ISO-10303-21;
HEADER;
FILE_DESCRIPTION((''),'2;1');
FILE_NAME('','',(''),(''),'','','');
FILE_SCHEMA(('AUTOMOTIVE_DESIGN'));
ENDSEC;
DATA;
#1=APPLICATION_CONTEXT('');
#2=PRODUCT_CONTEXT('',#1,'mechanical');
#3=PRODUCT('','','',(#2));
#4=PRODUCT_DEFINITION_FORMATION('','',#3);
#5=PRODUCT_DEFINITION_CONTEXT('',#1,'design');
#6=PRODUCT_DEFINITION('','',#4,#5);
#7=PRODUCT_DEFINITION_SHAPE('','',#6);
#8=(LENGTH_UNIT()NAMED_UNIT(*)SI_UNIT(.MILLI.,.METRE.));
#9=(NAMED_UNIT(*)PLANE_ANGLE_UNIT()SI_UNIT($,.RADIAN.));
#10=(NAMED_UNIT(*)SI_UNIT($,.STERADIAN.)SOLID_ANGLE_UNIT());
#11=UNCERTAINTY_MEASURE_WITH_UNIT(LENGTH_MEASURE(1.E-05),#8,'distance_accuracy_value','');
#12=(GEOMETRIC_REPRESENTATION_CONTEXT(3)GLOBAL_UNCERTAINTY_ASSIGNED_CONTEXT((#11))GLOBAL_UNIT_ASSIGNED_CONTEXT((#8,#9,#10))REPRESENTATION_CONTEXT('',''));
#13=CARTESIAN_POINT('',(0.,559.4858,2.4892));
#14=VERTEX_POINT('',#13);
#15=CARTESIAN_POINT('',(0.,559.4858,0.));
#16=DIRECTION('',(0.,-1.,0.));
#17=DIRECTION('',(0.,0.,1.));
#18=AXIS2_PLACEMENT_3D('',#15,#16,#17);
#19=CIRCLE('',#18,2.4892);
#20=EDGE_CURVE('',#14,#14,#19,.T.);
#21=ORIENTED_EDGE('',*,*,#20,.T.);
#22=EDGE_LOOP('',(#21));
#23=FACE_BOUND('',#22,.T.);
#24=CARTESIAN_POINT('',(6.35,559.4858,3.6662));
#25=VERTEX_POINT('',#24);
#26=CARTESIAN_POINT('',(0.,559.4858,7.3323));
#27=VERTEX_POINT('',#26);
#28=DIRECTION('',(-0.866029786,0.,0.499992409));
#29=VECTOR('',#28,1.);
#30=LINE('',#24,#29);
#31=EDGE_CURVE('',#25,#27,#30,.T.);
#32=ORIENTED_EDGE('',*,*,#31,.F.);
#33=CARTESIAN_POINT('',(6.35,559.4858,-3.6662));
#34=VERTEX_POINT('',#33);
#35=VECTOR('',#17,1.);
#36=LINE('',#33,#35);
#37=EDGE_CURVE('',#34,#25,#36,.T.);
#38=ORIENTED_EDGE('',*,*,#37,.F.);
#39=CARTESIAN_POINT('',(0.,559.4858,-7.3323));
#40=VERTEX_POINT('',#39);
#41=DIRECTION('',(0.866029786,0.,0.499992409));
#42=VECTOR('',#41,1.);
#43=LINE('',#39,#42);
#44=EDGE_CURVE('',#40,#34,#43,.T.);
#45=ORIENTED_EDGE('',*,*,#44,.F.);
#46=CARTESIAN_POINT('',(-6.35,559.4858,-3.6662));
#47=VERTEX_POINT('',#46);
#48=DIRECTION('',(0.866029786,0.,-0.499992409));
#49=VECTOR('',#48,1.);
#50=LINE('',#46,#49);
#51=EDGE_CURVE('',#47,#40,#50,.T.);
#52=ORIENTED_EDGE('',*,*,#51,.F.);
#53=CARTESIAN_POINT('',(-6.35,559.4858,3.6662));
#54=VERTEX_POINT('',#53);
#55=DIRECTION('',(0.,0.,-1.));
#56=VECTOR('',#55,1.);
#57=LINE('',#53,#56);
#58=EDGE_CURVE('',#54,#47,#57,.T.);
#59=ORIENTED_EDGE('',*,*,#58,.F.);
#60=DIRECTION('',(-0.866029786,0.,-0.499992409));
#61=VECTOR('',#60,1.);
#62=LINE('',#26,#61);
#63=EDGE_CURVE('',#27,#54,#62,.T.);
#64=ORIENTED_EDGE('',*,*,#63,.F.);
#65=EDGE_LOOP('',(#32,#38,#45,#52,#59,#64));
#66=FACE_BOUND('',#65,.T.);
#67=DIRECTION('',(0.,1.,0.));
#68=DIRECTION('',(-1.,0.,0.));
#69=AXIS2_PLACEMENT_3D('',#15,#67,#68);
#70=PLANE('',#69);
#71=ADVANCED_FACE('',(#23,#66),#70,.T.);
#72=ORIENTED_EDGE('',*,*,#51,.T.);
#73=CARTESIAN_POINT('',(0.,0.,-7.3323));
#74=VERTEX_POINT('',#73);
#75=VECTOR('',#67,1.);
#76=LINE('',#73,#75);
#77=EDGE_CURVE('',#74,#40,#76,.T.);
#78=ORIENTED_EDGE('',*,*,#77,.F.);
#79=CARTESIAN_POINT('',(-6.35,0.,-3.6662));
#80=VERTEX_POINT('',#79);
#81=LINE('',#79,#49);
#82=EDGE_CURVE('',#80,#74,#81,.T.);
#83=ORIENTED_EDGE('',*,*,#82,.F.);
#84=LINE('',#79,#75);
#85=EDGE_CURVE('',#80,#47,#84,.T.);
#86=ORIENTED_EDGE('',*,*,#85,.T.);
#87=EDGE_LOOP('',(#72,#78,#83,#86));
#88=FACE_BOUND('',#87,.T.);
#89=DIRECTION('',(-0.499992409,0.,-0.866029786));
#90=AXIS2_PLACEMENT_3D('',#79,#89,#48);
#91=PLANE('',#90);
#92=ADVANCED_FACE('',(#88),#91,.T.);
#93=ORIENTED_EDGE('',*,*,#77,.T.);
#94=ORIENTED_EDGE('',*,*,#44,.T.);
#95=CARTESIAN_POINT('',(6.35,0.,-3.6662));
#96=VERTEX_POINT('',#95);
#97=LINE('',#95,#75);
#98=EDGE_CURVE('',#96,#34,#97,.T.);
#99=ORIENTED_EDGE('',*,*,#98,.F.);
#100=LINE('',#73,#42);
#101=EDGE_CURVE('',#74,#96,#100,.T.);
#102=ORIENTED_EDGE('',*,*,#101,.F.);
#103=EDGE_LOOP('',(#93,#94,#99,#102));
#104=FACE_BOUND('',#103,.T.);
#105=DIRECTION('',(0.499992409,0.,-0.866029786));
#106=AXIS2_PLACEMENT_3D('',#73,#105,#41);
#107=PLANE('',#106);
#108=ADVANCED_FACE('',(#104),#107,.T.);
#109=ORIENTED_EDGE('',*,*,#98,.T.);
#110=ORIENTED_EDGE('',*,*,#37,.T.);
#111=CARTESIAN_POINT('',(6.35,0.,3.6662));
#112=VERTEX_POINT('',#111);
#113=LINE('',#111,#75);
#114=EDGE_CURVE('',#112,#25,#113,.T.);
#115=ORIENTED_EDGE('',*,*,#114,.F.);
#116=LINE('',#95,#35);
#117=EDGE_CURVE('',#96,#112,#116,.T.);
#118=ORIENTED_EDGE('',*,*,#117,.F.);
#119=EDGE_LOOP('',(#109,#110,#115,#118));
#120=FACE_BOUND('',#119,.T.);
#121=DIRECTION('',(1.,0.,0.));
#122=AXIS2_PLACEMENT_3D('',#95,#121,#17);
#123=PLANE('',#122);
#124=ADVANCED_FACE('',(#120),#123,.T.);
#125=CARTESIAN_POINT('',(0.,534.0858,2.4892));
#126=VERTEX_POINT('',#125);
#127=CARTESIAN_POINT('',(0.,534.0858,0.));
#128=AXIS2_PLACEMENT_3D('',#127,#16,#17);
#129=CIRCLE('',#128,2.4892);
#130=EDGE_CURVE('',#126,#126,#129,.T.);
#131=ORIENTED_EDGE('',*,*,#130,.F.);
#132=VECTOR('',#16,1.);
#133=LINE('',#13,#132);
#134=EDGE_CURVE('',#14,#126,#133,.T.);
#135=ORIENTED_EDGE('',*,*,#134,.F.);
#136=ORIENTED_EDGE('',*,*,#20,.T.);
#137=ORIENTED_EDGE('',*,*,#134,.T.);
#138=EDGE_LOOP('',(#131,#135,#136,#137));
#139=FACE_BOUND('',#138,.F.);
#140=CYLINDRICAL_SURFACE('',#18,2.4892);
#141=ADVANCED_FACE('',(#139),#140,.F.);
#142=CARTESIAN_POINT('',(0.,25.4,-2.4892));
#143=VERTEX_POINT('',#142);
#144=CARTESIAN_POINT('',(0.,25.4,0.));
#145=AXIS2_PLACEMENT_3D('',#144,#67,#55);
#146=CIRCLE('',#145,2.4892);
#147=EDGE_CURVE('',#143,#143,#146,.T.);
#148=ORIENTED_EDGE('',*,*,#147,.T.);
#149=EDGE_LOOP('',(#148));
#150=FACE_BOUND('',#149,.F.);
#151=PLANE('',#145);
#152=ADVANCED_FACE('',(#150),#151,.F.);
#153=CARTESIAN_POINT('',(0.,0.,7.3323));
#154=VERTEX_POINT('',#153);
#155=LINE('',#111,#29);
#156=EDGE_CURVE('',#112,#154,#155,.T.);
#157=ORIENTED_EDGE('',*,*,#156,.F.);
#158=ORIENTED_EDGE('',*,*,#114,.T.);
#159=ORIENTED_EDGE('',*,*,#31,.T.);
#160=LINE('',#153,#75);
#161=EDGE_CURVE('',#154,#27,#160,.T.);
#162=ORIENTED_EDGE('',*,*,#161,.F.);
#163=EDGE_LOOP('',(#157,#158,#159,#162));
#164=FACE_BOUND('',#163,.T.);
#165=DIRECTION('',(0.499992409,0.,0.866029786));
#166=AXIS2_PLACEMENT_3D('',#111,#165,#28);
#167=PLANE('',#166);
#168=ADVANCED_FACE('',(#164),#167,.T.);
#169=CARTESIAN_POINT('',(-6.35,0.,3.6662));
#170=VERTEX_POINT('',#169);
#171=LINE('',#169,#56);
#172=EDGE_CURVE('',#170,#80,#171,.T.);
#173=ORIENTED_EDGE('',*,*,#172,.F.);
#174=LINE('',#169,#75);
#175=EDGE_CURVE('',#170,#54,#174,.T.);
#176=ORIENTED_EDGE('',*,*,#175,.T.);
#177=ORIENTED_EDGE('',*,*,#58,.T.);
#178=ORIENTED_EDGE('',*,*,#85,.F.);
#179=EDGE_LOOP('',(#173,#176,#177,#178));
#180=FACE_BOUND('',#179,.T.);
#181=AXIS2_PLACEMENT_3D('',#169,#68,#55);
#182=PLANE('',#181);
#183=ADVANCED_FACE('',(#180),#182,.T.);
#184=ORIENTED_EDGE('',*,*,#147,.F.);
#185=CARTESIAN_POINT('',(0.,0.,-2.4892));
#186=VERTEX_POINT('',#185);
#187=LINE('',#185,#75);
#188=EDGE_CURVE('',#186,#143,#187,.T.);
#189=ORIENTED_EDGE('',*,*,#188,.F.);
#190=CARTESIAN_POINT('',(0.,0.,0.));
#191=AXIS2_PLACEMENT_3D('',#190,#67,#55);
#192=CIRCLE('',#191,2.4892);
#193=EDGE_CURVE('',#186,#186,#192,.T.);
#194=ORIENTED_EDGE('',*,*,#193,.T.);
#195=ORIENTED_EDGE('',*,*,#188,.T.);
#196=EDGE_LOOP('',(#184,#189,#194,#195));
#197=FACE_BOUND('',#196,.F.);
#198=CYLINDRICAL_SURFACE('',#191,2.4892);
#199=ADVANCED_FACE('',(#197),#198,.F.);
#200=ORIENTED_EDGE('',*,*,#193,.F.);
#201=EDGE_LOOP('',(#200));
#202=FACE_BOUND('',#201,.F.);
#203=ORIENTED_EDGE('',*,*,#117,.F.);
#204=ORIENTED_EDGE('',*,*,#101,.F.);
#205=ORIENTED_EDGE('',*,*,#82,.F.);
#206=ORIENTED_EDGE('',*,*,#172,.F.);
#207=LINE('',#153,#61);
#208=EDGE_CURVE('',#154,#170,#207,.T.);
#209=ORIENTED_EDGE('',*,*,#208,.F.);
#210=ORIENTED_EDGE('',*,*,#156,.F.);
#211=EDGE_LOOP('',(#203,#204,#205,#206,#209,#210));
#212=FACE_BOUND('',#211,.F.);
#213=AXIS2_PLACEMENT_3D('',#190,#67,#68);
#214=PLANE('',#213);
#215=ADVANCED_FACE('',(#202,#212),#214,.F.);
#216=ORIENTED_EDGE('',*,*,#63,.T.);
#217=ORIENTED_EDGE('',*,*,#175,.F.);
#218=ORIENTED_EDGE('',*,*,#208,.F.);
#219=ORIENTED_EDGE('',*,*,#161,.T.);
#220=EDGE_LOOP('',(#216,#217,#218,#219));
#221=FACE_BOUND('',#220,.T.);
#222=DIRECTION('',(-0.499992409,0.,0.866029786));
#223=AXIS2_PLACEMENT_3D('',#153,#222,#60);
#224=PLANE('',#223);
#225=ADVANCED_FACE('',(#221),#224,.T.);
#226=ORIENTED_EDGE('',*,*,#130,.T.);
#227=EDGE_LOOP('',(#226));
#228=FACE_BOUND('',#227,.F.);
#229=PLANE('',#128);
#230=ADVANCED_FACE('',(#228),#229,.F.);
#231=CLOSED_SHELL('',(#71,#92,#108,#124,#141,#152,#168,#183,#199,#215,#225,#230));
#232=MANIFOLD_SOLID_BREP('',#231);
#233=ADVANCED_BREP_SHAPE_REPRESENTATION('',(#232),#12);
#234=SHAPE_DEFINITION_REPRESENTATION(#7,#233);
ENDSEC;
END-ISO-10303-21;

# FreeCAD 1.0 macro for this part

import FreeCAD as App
import Part
import Sketcher
Q = App.Units.Quantity


def add_polygon(sketch, points):
    """Adds a closed chain of lines whose ends are joined by coincident constraints."""
    first, n = sketch.GeometryCount, len(points)
    for a, b in zip(points, points[1:] + points[:1]):
        sketch.addGeometry(Part.LineSegment(App.Vector(*a, 0), App.Vector(*b, 0)), False)
    for i in range(n):
        sketch.addConstraint(Sketcher.Constraint("Coincident", first + i, 2, first + (i + 1) % n, 1))

doc = App.newDocument("Part")
body = doc.addObject("PartDesign::Body", "Body")

# Sketch on XZ plane
sketch1 = body.newObject("Sketcher::SketchObject", "Sketch")
sketch1.AttachmentSupport = (doc.getObject("XZ_Plane"), [""])
sketch1.MapMode = "FlatFace"
add_polygon(sketch1, [(0, -7), (-6, -4), (-6, 4), (0, 7), (6, 4), (6, -4)])  # lines 0-5
sketch1.addConstraint([
    Sketcher.Constraint("Vertical", 1),
    Sketcher.Constraint("Vertical", 4),
    Sketcher.Constraint("Symmetric", 0, 2, 3, 2, -1, 1),
    Sketcher.Constraint("Symmetric", 2, 2, 5, 2, -1, 1),
    Sketcher.Constraint("PointOnObject", 2, 2, -2),
    Sketcher.Constraint("Parallel", 2, 5),
    Sketcher.Constraint("Horizontal", 1, 2, 3, 2),
    Sketcher.Constraint("DistanceX", 1, 2, 3, 2, Q("0.5 in")),
    Sketcher.Constraint("Angle", 0, Q("150.0005 deg")),
    Sketcher.Constraint("DistanceY", 0, 2, 2, 2, Q("0.433 in")),
])
pad1 = body.newObject("PartDesign::Pad", "Pad")
pad1.Profile = sketch1
pad1.Length = Q("22.027 in")
pad1.Reversed = True

# Sketch on XZ plane
sketch2 = body.newObject("Sketcher::SketchObject", "Sketch001")
sketch2.AttachmentSupport = (doc.getObject("XZ_Plane"), [""])
sketch2.MapMode = "FlatFace"
sketch2.addGeometry(Part.Circle(App.Vector(0, 0, 0), App.Vector(0, 0, 1), 2.5), False)
sketch2.addConstraint([
    Sketcher.Constraint("Coincident", 0, 3, -1, 1),
    Sketcher.Constraint("Diameter", 0, Q("0.196 in")),
])
doc.recompute()
hole = body.newObject("PartDesign::Hole", "Hole")
hole.Profile = sketch2
hole.ThreadType = "None"
hole.Diameter = Q("0.196 in")
hole.DepthType = "Dimension"
hole.Depth = Q("1 in")
hole.DrillPoint = "Flat"

# Sketch on XZ plane
sketch3 = body.newObject("Sketcher::SketchObject", "Sketch002")
sketch3.AttachmentSupport = (doc.getObject("XZ_Plane"), [""])
sketch3.MapMode = "FlatFace"
sketch3.AttachmentOffset = App.Placement(App.Vector(0, 0, -22.027 * 25.4), App.Rotation())
sketch3.addGeometry(Part.Circle(App.Vector(0, 0, 0), App.Vector(0, 0, 1), 2.5), False)
sketch3.addConstraint([
    Sketcher.Constraint("Coincident", 0, 3, -1, 1),
    Sketcher.Constraint("Diameter", 0, Q("0.196 in")),
])
doc.recompute()
hole2 = body.newObject("PartDesign::Hole", "Hole001")
hole2.Profile = sketch3
hole2.ThreadType = "None"
hole2.Diameter = Q("0.196 in")
hole2.DepthType = "Dimension"
hole2.Depth = Q("1 in")
hole2.DrillPoint = "Flat"
hole2.Reversed = True

doc.recompute()
